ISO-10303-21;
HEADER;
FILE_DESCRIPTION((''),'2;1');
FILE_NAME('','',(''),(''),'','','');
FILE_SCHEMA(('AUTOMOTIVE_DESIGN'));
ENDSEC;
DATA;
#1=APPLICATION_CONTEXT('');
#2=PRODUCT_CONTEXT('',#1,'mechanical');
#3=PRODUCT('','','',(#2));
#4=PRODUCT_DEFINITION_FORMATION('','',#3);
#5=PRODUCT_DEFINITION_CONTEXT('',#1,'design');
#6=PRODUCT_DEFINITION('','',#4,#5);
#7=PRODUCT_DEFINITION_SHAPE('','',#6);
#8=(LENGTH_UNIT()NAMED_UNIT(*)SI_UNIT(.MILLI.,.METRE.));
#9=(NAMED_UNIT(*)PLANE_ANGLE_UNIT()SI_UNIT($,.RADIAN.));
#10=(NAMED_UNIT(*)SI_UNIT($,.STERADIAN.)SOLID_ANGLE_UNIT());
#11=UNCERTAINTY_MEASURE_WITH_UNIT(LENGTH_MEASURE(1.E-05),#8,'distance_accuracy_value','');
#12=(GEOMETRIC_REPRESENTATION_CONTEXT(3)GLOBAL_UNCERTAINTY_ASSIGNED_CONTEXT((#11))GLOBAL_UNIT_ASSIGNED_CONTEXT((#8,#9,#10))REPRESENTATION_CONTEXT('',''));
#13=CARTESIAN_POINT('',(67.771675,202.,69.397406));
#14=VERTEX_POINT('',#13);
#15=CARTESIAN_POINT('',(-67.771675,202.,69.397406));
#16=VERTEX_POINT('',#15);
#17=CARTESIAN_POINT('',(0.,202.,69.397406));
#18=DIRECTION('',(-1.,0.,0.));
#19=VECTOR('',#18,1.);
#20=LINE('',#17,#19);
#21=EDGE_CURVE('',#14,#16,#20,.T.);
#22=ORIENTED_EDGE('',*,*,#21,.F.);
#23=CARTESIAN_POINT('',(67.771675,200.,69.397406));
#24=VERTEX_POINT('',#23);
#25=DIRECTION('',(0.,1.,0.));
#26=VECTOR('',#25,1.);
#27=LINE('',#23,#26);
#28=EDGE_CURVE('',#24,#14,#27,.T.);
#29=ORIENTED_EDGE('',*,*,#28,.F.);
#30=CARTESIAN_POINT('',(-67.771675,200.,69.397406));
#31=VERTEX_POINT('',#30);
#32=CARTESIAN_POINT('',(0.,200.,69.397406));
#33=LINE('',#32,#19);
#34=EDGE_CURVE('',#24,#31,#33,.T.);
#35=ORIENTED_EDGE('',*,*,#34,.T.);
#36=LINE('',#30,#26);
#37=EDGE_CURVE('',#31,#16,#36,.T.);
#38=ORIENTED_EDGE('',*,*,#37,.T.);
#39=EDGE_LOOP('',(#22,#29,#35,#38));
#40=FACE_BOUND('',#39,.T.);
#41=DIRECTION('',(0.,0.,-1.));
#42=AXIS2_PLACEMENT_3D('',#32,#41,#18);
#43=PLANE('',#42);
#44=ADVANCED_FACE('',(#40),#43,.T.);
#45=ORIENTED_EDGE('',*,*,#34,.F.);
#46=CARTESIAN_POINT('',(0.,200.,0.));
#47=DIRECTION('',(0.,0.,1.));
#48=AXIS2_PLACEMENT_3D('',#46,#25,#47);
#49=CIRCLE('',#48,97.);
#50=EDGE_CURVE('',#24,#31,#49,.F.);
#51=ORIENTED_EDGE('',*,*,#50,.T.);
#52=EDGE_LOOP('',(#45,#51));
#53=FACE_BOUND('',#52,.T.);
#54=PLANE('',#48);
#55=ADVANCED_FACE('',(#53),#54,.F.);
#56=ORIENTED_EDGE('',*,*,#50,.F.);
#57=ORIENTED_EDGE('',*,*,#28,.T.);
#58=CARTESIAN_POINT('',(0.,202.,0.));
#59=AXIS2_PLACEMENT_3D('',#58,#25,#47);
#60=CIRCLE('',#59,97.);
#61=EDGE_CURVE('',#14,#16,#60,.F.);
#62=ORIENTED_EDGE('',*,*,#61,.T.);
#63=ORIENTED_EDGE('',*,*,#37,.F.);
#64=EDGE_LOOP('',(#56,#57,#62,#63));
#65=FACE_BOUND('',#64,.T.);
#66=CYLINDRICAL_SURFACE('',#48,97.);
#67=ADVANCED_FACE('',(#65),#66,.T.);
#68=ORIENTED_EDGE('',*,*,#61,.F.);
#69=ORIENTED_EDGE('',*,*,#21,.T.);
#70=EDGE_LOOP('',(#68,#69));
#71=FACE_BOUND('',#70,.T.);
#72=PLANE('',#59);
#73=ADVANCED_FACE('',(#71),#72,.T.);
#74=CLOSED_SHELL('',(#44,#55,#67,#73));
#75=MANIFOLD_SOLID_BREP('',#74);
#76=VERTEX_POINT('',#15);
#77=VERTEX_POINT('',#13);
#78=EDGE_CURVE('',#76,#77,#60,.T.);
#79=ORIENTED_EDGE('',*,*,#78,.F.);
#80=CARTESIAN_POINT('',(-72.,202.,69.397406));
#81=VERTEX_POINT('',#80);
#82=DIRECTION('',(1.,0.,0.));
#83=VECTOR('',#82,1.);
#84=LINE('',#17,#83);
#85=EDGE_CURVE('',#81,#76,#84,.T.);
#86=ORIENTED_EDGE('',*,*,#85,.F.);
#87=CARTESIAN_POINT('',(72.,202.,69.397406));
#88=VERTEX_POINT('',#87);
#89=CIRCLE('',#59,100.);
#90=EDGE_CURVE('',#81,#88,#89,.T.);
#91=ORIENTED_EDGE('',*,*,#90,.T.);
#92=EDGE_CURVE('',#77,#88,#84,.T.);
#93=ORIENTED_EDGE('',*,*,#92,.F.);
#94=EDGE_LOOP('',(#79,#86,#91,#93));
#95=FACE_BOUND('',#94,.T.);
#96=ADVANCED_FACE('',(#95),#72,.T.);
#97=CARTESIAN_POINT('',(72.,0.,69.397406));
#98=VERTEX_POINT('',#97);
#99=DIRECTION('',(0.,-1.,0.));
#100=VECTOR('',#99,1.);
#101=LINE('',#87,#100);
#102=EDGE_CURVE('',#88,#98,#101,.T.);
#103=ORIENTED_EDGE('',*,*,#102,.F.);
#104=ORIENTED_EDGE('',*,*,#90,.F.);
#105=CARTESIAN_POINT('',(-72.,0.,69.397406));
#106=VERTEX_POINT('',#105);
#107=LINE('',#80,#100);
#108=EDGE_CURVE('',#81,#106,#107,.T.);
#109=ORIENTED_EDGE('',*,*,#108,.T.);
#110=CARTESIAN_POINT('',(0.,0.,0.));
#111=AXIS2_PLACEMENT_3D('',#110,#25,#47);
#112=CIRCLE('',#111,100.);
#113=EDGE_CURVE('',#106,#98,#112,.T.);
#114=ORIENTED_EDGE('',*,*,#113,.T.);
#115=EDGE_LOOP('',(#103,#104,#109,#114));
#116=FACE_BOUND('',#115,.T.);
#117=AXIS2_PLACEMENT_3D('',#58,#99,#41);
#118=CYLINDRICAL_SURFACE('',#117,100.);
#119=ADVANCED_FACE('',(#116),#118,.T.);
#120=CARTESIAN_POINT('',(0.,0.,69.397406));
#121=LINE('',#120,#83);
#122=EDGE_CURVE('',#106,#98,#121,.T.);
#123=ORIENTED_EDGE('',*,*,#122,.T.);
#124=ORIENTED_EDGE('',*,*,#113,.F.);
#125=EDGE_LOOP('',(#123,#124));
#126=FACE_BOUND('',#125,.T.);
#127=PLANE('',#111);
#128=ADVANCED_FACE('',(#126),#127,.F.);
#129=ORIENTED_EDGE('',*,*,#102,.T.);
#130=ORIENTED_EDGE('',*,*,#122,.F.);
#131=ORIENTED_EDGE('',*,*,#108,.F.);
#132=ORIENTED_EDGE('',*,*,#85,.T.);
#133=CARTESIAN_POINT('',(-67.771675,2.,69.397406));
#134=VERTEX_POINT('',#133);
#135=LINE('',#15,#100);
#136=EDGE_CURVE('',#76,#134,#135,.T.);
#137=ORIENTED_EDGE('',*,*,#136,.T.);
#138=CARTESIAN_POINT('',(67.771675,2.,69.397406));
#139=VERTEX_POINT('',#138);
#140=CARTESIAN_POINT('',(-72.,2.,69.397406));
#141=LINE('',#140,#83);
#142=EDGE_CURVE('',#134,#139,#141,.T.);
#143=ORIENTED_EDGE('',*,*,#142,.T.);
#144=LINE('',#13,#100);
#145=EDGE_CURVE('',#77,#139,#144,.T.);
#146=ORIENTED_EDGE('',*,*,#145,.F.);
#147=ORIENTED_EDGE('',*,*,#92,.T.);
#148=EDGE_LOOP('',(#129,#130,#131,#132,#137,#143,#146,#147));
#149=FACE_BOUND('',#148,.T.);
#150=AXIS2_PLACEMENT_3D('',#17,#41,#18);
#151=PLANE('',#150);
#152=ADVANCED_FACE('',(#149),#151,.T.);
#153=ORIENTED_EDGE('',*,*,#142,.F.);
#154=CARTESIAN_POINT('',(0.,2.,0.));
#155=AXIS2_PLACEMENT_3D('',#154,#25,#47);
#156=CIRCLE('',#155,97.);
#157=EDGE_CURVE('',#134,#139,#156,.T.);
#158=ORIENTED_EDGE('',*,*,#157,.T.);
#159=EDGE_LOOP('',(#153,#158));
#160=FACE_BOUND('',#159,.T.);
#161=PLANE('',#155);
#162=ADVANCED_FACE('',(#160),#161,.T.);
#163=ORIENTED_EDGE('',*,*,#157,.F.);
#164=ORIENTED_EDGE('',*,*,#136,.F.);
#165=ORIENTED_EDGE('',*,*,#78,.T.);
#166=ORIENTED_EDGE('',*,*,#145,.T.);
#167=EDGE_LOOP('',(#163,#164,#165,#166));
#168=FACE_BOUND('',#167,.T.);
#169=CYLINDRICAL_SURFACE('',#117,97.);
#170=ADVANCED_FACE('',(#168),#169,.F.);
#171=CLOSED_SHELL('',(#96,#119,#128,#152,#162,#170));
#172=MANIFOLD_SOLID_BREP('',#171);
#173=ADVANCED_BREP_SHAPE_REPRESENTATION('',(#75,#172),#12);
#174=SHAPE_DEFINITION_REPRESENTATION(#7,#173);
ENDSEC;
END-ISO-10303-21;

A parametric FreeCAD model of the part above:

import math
import FreeCAD as App
import Part
import Sketcher

doc = App.newDocument("Part")
body = doc.addObject("PartDesign::Body", "Body")

# Sketch on XZ plane
sketch1 = body.newObject("Sketcher::SketchObject", "Sketch")
sketch1.AttachmentSupport = (doc.getObject("XZ_Plane"), [""])
sketch1.MapMode = "FlatFace"
sketch1.addGeometry([
    Part.LineSegment(App.Vector(-67.8, 69.4, 0), App.Vector(-72, 69.4, 0)),  # 0
    Part.ArcOfCircle(Part.Circle(App.Vector(0, 0, 0), App.Vector(0, 0, 1), 100), math.radians(44), math.radians(136)),  # 1
    Part.LineSegment(App.Vector(72, 69.4, 0), App.Vector(67.8, 69.4, 0)),  # 2
    Part.ArcOfCircle(Part.Circle(App.Vector(0, 0, 0), App.Vector(0, 0, 1), 97), math.radians(45.68), math.radians(48.28)),  # 3
    Part.ArcOfCircle(Part.Circle(App.Vector(0, 0, 0), App.Vector(0, 0, 1), 97), math.radians(48), math.radians(132)),  # 4
    Part.ArcOfCircle(Part.Circle(App.Vector(0, 0, 0), App.Vector(0, 0, 1), 97), math.radians(131.72), math.radians(134.32)),  # 5
], False)
sketch1.addConstraint([
    Sketcher.Constraint("Coincident", 0, 2, 1, 2),
    Sketcher.Constraint("Coincident", 1, 1, 2, 1),
    Sketcher.Constraint("Coincident", 2, 2, 3, 1),
    Sketcher.Constraint("Tangent", 3, 2, 4, 1),
    Sketcher.Constraint("Tangent", 4, 2, 5, 1),
    Sketcher.Constraint("Coincident", 5, 2, 0, 1),
    Sketcher.Constraint("Horizontal", 0),
    Sketcher.Constraint("Horizontal", 2),
    Sketcher.Constraint("Coincident", 1, 3, -1, 1),
    Sketcher.Constraint("Coincident", 3, 3, -1, 1),
    Sketcher.Constraint("Coincident", 5, 3, -1, 1),
    Sketcher.Constraint("Horizontal", 0, 2, 1, 1),
    Sketcher.Constraint("Horizontal", 3, 2, 4, 2),
    Sketcher.Constraint("Radius", 1, 100.0),
    Sketcher.Constraint("Radius", 3, 97.000001),
    Sketcher.Constraint("DistanceX", 0, 2, -1, 1, 72.0),
    Sketcher.Constraint("DistanceY", 2, 2, 3, 2, 3.0),
])
pad1 = body.newObject("PartDesign::Pad", "Pad")
pad1.Profile = sketch1
pad1.Length = 202
pad1.Reversed = True

# Sketch on XZ plane
sketch2 = body.newObject("Sketcher::SketchObject", "Sketch001")
sketch2.AttachmentSupport = (doc.getObject("XZ_Plane"), [""])
sketch2.MapMode = "FlatFace"
sketch2.addGeometry([
    Part.LineSegment(App.Vector(72, 69, 0), App.Vector(-72, 69, 0)),
    Part.ArcOfCircle(Part.Circle(App.Vector(0, 0, 0), App.Vector(0, 0, 1), 100), math.radians(44), math.radians(136)),
], False)
sketch2.addConstraint([
    Sketcher.Constraint("Coincident", 0, 1, 1, 1),
    Sketcher.Constraint("Coincident", 1, 2, 0, 2),
    Sketcher.Constraint("Horizontal", 0),
    Sketcher.Constraint("Coincident", 1, 3, -1, 1),
    Sketcher.Constraint("Radius", 1, 100.0),
    Sketcher.Constraint("DistanceX", 0, 2, 0, 1, 144.0),
])
pad2 = body.newObject("PartDesign::Pad", "Pad001")
pad2.Profile = sketch2
pad2.Length = 2
pad2.Reversed = True
body2 = doc.addObject("PartDesign::Body", "Body001")

# Sketch on XZ plane
sketch3 = body2.newObject("Sketcher::SketchObject", "Sketch002")
sketch3.AttachmentSupport = (doc.getObject("XZ_Plane001"), [""])
sketch3.MapMode = "FlatFace"
sketch3.AttachmentOffset = App.Placement(App.Vector(0, 0, -202), App.Rotation())
sketch3.addGeometry([
    Part.LineSegment(App.Vector(68, 69, 0), App.Vector(-68, 69, 0)),
    Part.ArcOfCircle(Part.Circle(App.Vector(0, 0, 0), App.Vector(0, 0, 1), 97), math.radians(46), math.radians(134)),
], False)
sketch3.addConstraint([
    Sketcher.Constraint("Coincident", 0, 1, 1, 1),
    Sketcher.Constraint("Coincident", 1, 2, 0, 2),
    Sketcher.Constraint("Horizontal", 0),
    Sketcher.Constraint("Coincident", 1, 3, -1, 1),
    Sketcher.Constraint("Radius", 1, 97.0),
    Sketcher.Constraint("DistanceX", 0, 2, 0, 1, 135.543351),
])
pad3 = body2.newObject("PartDesign::Pad", "Pad002")
pad3.Profile = sketch3
pad3.Length = 2

doc.recompute()
